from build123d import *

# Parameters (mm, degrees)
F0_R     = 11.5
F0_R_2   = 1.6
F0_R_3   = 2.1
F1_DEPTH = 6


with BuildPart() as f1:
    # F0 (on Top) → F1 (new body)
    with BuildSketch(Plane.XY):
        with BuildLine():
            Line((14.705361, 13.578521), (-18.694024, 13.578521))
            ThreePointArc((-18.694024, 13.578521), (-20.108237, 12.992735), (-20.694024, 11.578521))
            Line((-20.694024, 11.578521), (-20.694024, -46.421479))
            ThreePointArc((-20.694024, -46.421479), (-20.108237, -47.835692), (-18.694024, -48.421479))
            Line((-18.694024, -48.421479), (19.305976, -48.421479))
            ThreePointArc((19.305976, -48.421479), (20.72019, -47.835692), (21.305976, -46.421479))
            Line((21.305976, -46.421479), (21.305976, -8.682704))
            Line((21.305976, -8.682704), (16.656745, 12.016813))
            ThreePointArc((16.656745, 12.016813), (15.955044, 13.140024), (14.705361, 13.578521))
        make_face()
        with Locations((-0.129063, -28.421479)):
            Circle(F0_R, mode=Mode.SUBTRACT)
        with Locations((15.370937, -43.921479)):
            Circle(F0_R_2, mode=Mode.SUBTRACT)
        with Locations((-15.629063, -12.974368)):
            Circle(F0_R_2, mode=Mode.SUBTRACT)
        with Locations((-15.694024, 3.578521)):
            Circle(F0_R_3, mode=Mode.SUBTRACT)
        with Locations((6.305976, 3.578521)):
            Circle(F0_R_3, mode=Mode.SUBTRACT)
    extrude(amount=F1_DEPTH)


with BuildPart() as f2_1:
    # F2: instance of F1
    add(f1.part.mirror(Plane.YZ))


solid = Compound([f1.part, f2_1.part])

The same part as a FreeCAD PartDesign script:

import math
import FreeCAD as App
import Part
import Sketcher

V = App.Vector
Q = App.Units.Quantity

doc = App.newDocument("Part")
body = doc.addObject("PartDesign::Body", "Body")

sketch1 = body.newObject("Sketcher::SketchObject", "Sketch")
sketch1.AttachmentSupport = (doc.getObject("XY_Plane"), [""])
sketch1.MapMode = "FlatFace"
sketch1.addGeometry([
    Part.LineSegment(V(14.705361, 13.578521, 0), V(-18.694024, 13.578521, 0)),
    Part.ArcOfCircle(Part.Circle(V(-18.694024, 11.578521, 0), V(0, 0, 1), 2), math.radians(90.000006), math.radians(179.999994)),
    Part.LineSegment(V(-20.694024, 11.578521, 0), V(-20.694024, -46.421479, 0)),
    Part.ArcOfCircle(Part.Circle(V(-18.694022, -46.421477, 0), V(0, 0, 1), 2.000002), math.radians(-179.999945), math.radians(-90.000055)),
    Part.LineSegment(V(-18.694024, -48.421479, 0), V(19.305976, -48.421479, 0)),
    Part.ArcOfCircle(Part.Circle(V(19.305976, -46.421479, 0), V(0, 0, 1), 2), math.radians(-89.999994), math.radians(-0.000006)),
    Part.LineSegment(V(21.305976, -46.421479, 0), V(21.305976, -8.682704, 0)),
    Part.LineSegment(V(21.305976, -8.682704, 0), V(16.656745, 12.016813, 0)),
    Part.ArcOfCircle(Part.Circle(V(14.705361, 11.578521, 0), V(0, 0, 1), 2), math.radians(12.658886), math.radians(89.999988)),
    Part.Circle(V(15.370937, -43.921479, 0), V(0, 0, 1), 1.6),
    Part.Circle(V(-0.129063, -28.421479, 0), V(0, 0, 1), 11.5),
    Part.Circle(V(-15.629063, -12.974368, 0), V(0, 0, 1), 1.6),
    Part.Circle(V(-15.694024, 3.578521, 0), V(0, 0, 1), 2.1),
    Part.Circle(V(6.305976, 3.578521, 0), V(0, 0, 1), 2.1),
], False)
sketch1.addConstraint([
    Sketcher.Constraint("Tangent", 0, 2, 1, 1),
    Sketcher.Constraint("Tangent", 1, 2, 2, 1),
    Sketcher.Constraint("Tangent", 2, 2, 3, 1),
    Sketcher.Constraint("Tangent", 3, 2, 4, 1),
    Sketcher.Constraint("Tangent", 4, 2, 5, 1),
    Sketcher.Constraint("Tangent", 5, 2, 6, 1),
    Sketcher.Constraint("Coincident", 6, 2, 7, 1),
    Sketcher.Constraint("Tangent", 7, 2, 8, 1),
    Sketcher.Constraint("Tangent", 8, 2, 0, 1),
    Sketcher.Constraint("Horizontal", 0),
    Sketcher.Constraint("Vertical", 2),
    Sketcher.Constraint("Horizontal", 4),
    Sketcher.Constraint("Vertical", 6),
    Sketcher.Constraint("Equal", 1, 3),
    Sketcher.Constraint("Equal", 3, 5),
    Sketcher.Constraint("Equal", 5, 8),
    Sketcher.Constraint("Equal", 9, 11),
    Sketcher.Constraint("Equal", 12, 13),
    Sketcher.Constraint("Horizontal", 12, 3, 13, 3),
    Sketcher.Constraint("Diameter", 10, Q("23 mm")),
    Sketcher.Constraint("Radius", 1, Q("2 mm")),
    Sketcher.Constraint("Diameter", 9, Q("3.2 mm")),
    Sketcher.Constraint("Diameter", 12, Q("4.2 mm")),
    Sketcher.Constraint("DistanceX", 4, 1, 4, 2, Q("38 mm")),
    Sketcher.Constraint("DistanceY", 2, 2, 2, 1, Q("58 mm")),
    Sketcher.Constraint("DistanceY", 3, 3, 10, 3, Q("17.999998 mm")),
    Sketcher.Constraint("DistanceX", 11, 3, 9, 3, Q("31 mm")),
    Sketcher.Constraint("DistanceX", 1, 3, 12, 3, Q("3 mm")),
    Sketcher.Constraint("DistanceY", 12, 3, 1, 3, Q("8 mm")),
    Sketcher.Constraint("DistanceX", 12, 3, 13, 3, Q("22 mm")),
    Sketcher.Constraint("DistanceY", 5, 3, 9, 3, Q("2.5 mm")),
    Sketcher.Constraint("DistanceX", 10, 3, 9, 3, Q("15.5 mm")),
    Sketcher.Constraint("DistanceX", 0, 2, 0, 1, Q("33.399385 mm")),
    Sketcher.Constraint("DistanceY", 6, 1, 6, 2, Q("37.738775 mm")),
    Sketcher.Constraint("DistanceY", -1, 1, 1, 3, Q("11.578521 mm")),
    Sketcher.Constraint("DistanceX", -1, 1, 8, 3, Q("14.705361 mm")),
    Sketcher.Constraint("DistanceX", 9, 3, 5, 3, Q("3.935039 mm")),
    Sketcher.Constraint("DistanceY", 10, 3, 11, 3, Q("15.447111 mm")),
])
pad1 = body.newObject("PartDesign::Pad", "Pad")
pad1.Profile = sketch1
pad1.Length = 6
body2 = doc.addObject("PartDesign::Body", "Body001")
doc.recompute()

mirroring = doc.addObject("Part::Mirroring", "Mirroring")
mirroring.Source = body
mirroring.Base = V(0, 0, 0)
mirroring.Normal = V(1, 0, 0)
body2.BaseFeature = mirroring
doc.recompute()
mirroring.Visibility = False

doc.recompute()
